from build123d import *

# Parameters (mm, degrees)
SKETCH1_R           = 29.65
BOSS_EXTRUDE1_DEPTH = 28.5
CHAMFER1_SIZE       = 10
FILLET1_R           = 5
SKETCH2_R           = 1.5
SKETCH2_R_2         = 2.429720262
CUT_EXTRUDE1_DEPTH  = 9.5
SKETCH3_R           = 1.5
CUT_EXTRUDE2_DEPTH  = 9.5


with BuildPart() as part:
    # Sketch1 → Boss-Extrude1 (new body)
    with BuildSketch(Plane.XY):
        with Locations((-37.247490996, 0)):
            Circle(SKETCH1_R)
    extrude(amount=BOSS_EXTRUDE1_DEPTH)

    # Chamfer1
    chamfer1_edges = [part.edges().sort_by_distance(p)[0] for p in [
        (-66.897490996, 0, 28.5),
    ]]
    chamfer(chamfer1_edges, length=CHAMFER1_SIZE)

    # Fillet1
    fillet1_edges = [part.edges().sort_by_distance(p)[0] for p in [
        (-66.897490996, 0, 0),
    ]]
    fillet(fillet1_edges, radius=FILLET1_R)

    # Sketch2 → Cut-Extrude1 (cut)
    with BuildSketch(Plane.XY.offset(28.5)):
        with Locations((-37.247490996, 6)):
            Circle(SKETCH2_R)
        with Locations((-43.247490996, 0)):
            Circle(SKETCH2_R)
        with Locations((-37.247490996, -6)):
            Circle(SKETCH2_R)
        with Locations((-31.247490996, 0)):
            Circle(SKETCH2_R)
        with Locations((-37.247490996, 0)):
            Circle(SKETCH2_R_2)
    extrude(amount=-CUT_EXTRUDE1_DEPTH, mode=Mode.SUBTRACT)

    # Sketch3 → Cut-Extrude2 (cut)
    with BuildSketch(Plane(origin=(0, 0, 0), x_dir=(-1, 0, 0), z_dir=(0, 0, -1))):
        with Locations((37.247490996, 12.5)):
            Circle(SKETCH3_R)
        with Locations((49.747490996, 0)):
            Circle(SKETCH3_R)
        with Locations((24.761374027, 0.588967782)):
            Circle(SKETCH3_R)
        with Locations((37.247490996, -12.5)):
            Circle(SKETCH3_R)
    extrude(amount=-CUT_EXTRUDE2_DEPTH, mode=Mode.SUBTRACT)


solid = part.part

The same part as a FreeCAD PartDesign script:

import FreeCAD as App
import Part
import Sketcher
Q = App.Units.Quantity


def edges_at(feature, points):
    """Names of the edges that pass closest to the given points."""
    edges = feature.Shape.Edges
    near = lambda p: min(range(len(edges)), key=lambda i: edges[i].distToShape(Part.Vertex(*p))[0])
    return sorted({f"Edge{near(p) + 1}" for p in points})

doc = App.newDocument("Part")
params = doc.addObject("Spreadsheet::Sheet", "Params")
for row, (alias, value) in enumerate([
    ("sketch1_diameter", "59.3 mm"),
    ("pad1_length", "28.5 mm"),
    ("chamfer_size", "10 mm"),
    ("fillet_radius", "5 mm"),
    ("sketch2_diameter", "3 mm"),
    ("pocket1_length", "9.5 mm"),
    ("sketch3_diameter", "3 mm"),
    ("pocket2_length", "9.5 mm"),
], start=1):
    params.set(f"A{row}", alias)
    params.set(f"B{row}", "=" + value)
    params.setAlias(f"B{row}", alias)

body = doc.addObject("PartDesign::Body", "Body")

sketch1 = body.newObject("Sketcher::SketchObject", "Sketch")
sketch1.AttachmentSupport = (doc.getObject("XY_Plane"), [""])
sketch1.MapMode = "FlatFace"
sketch1.addGeometry(Part.Circle(App.Vector(-37, 0, 0), App.Vector(0, 0, 1), 30), False)
sketch1.addConstraint([
    Sketcher.Constraint("PointOnObject", 0, 3, -1),
    Sketcher.Constraint("Diameter", 0, Q("59.3 mm")),
    Sketcher.Constraint("DistanceX", 0, 3, -1, 1, Q("37.247491 mm")),
])
sketch1.setExpression("Constraints[1]", "Params.sketch1_diameter")
pad1 = body.newObject("PartDesign::Pad", "Pad")
pad1.Profile = sketch1
pad1.setExpression("Length", "Params.pad1_length")
doc.recompute()

chamfer = body.newObject("PartDesign::Chamfer", "Chamfer")
chamfer.Base = (pad1, edges_at(pad1, [(-66.897, 0, 28.5)]))
chamfer.setExpression("Size", "Params.chamfer_size")
doc.recompute()

fillet = body.newObject("PartDesign::Fillet", "Fillet")
fillet.Base = (chamfer, edges_at(chamfer, [(-66.897, 0, 0)]))
fillet.setExpression("Radius", "Params.fillet_radius")

sketch2 = body.newObject("Sketcher::SketchObject", "Sketch001")
sketch2.AttachmentSupport = (doc.getObject("XY_Plane"), [""])
sketch2.MapMode = "FlatFace"
sketch2.AttachmentOffset = App.Placement(App.Vector(0, 0, 28.5), App.Rotation())
sketch2.addGeometry([
    Part.Circle(App.Vector(-37.2, 6, 0), App.Vector(0, 0, 1), 1.5),
    Part.Circle(App.Vector(-43.2, 0, 0), App.Vector(0, 0, 1), 1.5),
    Part.Circle(App.Vector(-37.2, -6, 0), App.Vector(0, 0, 1), 1.5),
    Part.Circle(App.Vector(-31.2, 0, 0), App.Vector(0, 0, 1), 1.5),
    Part.Circle(App.Vector(-37.2, 0, 0), App.Vector(0, 0, 1), 2.4),
], False)
sketch2.addConstraint([
    Sketcher.Constraint("Equal", 0, 1),
    Sketcher.Constraint("Equal", 1, 2),
    Sketcher.Constraint("Equal", 2, 3),
    Sketcher.Constraint("Symmetric", 0, 3, 2, 3, -1),
    Sketcher.Constraint("PointOnObject", 1, 3, -1),
    Sketcher.Constraint("PointOnObject", 3, 3, -1),
    Sketcher.Constraint("PointOnObject", 4, 3, -1),
    Sketcher.Constraint("Vertical", 2, 3, 4, 3),
    Sketcher.Constraint("Diameter", 0, Q("3 mm")),
    Sketcher.Constraint("DistanceY", -1, 1, 0, 3, Q("6 mm")),
    Sketcher.Constraint("DistanceX", 1, 3, 0, 3, Q("6 mm")),
    Sketcher.Constraint("DistanceX", 0, 3, 3, 3, Q("6 mm")),
    Sketcher.Constraint("Diameter", 4, Q("4.859441 mm")),
    Sketcher.Constraint("DistanceX", 0, 3, -1, 1, Q("37.247491 mm")),
])
sketch2.setExpression("Constraints[8]", "Params.sketch2_diameter")
pocket1 = body.newObject("PartDesign::Pocket", "Pocket")
pocket1.Profile = sketch2
pocket1.setExpression("Length", "Params.pocket1_length")

sketch3 = body.newObject("Sketcher::SketchObject", "Sketch002")
sketch3.AttachmentSupport = (doc.getObject("XY_Plane"), [""])
sketch3.MapMode = "FlatFace"
sketch3.addGeometry([
    Part.Circle(App.Vector(-37.2, 12.5, 0), App.Vector(0, 0, 1), 1.5),
    Part.Circle(App.Vector(-49.7, 0, 0), App.Vector(0, 0, 1), 1.5),
    Part.Circle(App.Vector(-24.8, 0.6, 0), App.Vector(0, 0, 1), 1.5),
    Part.Circle(App.Vector(-37.2, -12.5, 0), App.Vector(0, 0, 1), 1.5),
], False)
sketch3.addConstraint([
    Sketcher.Constraint("Equal", 0, 1),
    Sketcher.Constraint("Equal", 1, 2),
    Sketcher.Constraint("Equal", 2, 3),
    Sketcher.Constraint("Symmetric", 0, 3, 3, 3, -1),
    Sketcher.Constraint("PointOnObject", 1, 3, -1),
    Sketcher.Constraint("Diameter", 0, Q("3 mm")),
    Sketcher.Constraint("DistanceY", 3, 3, 0, 3, Q("25 mm")),
    Sketcher.Constraint("DistanceX", 1, 3, 0, 3, Q("12.5 mm")),
    Sketcher.Constraint("DistanceX", 0, 3, -1, 1, Q("37.247491 mm")),
    Sketcher.Constraint("DistanceX", 2, 3, -1, 1, Q("24.761374 mm")),
    Sketcher.Constraint("DistanceY", -1, 1, 2, 3, Q("0.588968 mm")),
])
sketch3.setExpression("Constraints[5]", "Params.sketch3_diameter")
pocket2 = body.newObject("PartDesign::Pocket", "Pocket001")
pocket2.Profile = sketch3
pocket2.setExpression("Length", "Params.pocket2_length")
pocket2.Reversed = True

doc.recompute()
